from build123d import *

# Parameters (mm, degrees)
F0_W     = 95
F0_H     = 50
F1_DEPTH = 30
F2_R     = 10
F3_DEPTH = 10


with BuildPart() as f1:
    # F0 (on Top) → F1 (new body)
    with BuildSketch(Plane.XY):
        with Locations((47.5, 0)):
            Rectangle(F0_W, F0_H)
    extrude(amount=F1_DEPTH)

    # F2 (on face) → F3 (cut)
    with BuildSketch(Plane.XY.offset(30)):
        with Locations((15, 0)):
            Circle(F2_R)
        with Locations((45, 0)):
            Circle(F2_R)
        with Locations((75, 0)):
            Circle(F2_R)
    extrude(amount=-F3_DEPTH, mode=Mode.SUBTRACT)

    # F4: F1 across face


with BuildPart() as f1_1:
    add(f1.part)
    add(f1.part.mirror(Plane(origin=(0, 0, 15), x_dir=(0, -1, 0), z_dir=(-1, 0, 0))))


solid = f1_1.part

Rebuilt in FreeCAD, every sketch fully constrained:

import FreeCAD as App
import Part
import Sketcher


def add_polygon(sketch, points):
    """Adds a closed chain of lines whose ends are joined by coincident constraints."""
    first, n = sketch.GeometryCount, len(points)
    for a, b in zip(points, points[1:] + points[:1]):
        sketch.addGeometry(Part.LineSegment(App.Vector(*a, 0), App.Vector(*b, 0)), False)
    for i in range(n):
        sketch.addConstraint(Sketcher.Constraint("Coincident", first + i, 2, first + (i + 1) % n, 1))

doc = App.newDocument("Part")
body = doc.addObject("PartDesign::Body", "Body")

# Sketch on XY plane
sketch1 = body.newObject("Sketcher::SketchObject", "Sketch")
sketch1.AttachmentSupport = (doc.getObject("XY_Plane"), [""])
sketch1.MapMode = "FlatFace"
add_polygon(sketch1, [(0, 25), (0, -25), (95, -25), (95, 25)])  # lines 0-3
sketch1.addConstraint(Sketcher.Constraint("Vertical", 0))
sketch1.addConstraint(Sketcher.Constraint("Horizontal", 1))
sketch1.addConstraint(Sketcher.Constraint("Vertical", 2))
sketch1.addConstraint(Sketcher.Constraint("Horizontal", 3))
sketch1.addConstraint(Sketcher.Constraint("Symmetric", 0, 2, 3, 2, -1, 1))
sketch1.addConstraint(Sketcher.Constraint("DistanceX", 1, 1, 1, 2, 95.0))
sketch1.addConstraint(Sketcher.Constraint("DistanceY", 0, 2, 0, 1, 50.0))
pad1 = body.newObject("PartDesign::Pad", "Pad")
pad1.Profile = sketch1
pad1.Length = 30

# Sketch on XY plane
sketch2 = body.newObject("Sketcher::SketchObject", "Sketch001")
sketch2.AttachmentSupport = (doc.getObject("XY_Plane"), [""])
sketch2.MapMode = "FlatFace"
sketch2.AttachmentOffset = App.Placement(App.Vector(0, 0, 30), App.Rotation())
sketch2.addGeometry(Part.Circle(App.Vector(15, 0, 0), App.Vector(0, 0, 1), 10), False)
sketch2.addGeometry(Part.Circle(App.Vector(45, 0, 0), App.Vector(0, 0, 1), 10), False)
sketch2.addGeometry(Part.Circle(App.Vector(75, 0, 0), App.Vector(0, 0, 1), 10), False)
sketch2.addConstraint(Sketcher.Constraint("Equal", 0, 1))
sketch2.addConstraint(Sketcher.Constraint("Equal", 1, 2))
sketch2.addConstraint(Sketcher.Constraint("PointOnObject", 0, 3, -1))
sketch2.addConstraint(Sketcher.Constraint("PointOnObject", 1, 3, -1))
sketch2.addConstraint(Sketcher.Constraint("PointOnObject", 2, 3, -1))
sketch2.addConstraint(Sketcher.Constraint("Diameter", 0, 20.0))
sketch2.addConstraint(Sketcher.Constraint("DistanceX", -1, 1, 0, 3, 15.0))
sketch2.addConstraint(Sketcher.Constraint("DistanceX", -1, 1, 1, 3, 45.0))
sketch2.addConstraint(Sketcher.Constraint("DistanceX", -1, 1, 2, 3, 75.0))
pocket1 = body.newObject("PartDesign::Pocket", "Pocket")
pocket1.Profile = sketch2
pocket1.Length = 10
body2 = doc.addObject("PartDesign::Body", "Body001")
doc.recompute()

body2.BaseFeature = body
doc.recompute()

mirroring = doc.addObject("Part::Mirroring", "Mirroring")
mirroring.Source = body
mirroring.Base = App.Vector(0, 0, 15)
mirroring.Normal = App.Vector(-1, 0, 0)
body3 = doc.addObject("PartDesign::Body", "Body002")
body3.BaseFeature = mirroring
boolean = body2.newObject("PartDesign::Boolean", "Boolean")
boolean.Type = "Fuse"
boolean.addObjects([body3])
doc.recompute()
mirroring.Visibility = False

doc.recompute()
